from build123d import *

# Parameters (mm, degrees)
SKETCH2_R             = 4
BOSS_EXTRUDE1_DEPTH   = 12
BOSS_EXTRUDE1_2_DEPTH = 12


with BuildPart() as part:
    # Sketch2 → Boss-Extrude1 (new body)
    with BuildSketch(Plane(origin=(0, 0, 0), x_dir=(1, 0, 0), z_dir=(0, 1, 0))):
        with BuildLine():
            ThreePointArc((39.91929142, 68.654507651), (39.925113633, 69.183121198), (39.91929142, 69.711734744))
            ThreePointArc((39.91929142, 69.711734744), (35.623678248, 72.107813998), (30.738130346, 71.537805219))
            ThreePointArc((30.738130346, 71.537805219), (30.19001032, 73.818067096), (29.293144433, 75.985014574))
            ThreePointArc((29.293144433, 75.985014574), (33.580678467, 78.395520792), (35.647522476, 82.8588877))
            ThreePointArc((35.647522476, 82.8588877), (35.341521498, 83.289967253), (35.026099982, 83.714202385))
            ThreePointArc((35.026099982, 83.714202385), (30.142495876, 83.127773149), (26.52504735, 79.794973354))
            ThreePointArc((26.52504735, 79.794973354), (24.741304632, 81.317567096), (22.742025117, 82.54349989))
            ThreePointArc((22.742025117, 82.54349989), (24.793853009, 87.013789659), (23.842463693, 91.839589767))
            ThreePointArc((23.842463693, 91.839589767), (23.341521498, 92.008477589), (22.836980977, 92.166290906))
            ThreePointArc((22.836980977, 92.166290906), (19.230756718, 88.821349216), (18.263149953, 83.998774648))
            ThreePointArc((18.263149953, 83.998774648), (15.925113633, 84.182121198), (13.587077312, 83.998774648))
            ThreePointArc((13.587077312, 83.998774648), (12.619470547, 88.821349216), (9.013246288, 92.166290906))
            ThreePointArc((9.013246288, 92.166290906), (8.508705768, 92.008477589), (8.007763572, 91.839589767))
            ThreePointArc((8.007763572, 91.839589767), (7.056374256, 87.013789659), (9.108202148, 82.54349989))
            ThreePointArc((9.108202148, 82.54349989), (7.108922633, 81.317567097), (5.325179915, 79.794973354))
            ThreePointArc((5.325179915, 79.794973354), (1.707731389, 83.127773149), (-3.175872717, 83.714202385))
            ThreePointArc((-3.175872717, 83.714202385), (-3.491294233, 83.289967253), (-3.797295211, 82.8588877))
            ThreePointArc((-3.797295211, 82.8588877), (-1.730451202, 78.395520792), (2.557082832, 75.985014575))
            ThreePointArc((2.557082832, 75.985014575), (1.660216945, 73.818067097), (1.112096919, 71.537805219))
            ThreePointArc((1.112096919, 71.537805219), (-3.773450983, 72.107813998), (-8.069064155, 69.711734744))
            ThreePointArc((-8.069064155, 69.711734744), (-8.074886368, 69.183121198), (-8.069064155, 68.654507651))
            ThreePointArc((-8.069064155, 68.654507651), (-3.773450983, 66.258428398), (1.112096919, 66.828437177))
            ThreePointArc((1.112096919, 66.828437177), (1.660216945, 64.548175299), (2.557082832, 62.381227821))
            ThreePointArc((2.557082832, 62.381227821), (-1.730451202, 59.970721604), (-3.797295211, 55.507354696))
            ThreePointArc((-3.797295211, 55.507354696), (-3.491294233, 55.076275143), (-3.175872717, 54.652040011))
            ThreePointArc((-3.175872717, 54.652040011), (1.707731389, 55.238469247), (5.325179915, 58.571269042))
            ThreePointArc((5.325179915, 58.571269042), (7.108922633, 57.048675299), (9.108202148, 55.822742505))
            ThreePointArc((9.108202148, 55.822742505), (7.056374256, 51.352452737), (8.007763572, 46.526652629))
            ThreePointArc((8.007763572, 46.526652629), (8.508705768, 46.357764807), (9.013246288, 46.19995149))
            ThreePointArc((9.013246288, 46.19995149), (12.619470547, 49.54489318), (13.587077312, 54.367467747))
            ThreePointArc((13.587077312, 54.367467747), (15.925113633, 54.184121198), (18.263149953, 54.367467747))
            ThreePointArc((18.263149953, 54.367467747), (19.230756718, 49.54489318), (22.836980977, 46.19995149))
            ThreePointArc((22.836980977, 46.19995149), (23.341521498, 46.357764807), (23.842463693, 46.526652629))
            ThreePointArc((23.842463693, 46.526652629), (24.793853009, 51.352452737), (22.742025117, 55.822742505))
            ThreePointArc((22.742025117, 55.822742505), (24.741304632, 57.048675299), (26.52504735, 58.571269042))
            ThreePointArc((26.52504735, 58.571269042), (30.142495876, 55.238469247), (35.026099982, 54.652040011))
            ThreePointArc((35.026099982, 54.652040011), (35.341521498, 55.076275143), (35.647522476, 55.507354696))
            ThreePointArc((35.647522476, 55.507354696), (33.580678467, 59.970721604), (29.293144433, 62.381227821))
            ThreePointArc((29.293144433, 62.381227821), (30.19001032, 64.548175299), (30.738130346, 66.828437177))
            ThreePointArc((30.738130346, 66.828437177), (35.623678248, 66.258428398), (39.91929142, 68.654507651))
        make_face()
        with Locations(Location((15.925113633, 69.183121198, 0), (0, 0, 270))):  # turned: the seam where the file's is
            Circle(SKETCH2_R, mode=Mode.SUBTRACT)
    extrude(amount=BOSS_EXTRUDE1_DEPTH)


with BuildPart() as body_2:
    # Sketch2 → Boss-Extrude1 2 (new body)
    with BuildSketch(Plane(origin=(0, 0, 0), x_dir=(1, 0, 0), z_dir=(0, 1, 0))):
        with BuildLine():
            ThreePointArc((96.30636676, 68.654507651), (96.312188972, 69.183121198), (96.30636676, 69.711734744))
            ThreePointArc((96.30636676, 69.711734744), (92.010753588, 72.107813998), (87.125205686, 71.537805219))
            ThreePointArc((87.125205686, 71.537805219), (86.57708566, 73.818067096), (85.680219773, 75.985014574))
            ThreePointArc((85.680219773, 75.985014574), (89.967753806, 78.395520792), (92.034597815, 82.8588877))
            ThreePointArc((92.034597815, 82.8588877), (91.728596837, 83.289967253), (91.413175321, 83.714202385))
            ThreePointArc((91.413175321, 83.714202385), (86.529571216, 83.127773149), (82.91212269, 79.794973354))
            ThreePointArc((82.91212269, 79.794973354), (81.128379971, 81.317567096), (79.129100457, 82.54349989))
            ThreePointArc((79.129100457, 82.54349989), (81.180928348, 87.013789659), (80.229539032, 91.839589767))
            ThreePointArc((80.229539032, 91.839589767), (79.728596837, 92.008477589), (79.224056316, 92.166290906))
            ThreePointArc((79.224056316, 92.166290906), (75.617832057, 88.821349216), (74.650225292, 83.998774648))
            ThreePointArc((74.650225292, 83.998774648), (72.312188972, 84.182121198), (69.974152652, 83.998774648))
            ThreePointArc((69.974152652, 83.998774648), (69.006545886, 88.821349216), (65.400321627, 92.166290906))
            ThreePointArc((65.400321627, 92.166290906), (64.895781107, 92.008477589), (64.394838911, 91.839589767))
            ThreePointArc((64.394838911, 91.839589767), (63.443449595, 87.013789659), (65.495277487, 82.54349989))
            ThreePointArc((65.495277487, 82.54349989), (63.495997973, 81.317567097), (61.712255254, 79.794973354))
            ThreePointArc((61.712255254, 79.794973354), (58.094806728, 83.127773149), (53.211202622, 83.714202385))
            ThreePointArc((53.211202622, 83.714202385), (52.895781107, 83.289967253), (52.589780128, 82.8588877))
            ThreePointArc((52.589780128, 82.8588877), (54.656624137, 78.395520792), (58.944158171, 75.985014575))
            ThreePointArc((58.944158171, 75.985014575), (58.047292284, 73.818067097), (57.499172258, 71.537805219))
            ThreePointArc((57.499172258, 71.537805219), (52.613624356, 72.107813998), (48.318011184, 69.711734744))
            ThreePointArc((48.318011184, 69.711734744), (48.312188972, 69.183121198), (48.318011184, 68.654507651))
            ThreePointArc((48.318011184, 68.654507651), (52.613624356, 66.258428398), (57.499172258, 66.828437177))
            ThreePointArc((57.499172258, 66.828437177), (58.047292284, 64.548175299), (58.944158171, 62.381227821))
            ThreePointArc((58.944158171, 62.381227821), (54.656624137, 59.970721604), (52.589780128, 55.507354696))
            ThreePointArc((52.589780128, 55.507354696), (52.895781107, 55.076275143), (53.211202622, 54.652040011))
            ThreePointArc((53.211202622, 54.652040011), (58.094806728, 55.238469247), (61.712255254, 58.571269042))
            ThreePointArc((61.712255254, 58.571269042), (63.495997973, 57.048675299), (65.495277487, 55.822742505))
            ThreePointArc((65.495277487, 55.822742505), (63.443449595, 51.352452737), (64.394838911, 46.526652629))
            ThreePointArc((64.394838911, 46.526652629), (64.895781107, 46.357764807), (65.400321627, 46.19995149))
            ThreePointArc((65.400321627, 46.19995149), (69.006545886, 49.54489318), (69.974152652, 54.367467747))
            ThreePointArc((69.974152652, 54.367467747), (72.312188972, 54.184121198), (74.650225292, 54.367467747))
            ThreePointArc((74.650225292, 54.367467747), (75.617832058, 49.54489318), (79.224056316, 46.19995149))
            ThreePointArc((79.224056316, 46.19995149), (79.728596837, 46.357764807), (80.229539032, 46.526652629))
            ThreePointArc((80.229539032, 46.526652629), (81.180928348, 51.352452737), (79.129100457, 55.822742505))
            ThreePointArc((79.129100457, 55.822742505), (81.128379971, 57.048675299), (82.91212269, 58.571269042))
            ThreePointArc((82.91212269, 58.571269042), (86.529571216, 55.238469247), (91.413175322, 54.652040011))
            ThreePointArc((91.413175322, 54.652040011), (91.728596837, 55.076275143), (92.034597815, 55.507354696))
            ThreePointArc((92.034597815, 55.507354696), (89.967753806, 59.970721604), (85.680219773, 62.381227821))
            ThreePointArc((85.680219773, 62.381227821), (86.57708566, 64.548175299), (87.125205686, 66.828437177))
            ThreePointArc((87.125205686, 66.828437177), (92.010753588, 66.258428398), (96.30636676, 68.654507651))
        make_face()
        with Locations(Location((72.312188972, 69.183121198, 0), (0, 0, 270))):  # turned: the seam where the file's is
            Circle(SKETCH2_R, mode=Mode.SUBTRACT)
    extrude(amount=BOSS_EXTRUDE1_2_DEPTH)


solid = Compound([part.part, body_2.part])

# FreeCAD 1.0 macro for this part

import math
import FreeCAD as App
import Part
import Sketcher

doc = App.newDocument("Part")
body = doc.addObject("PartDesign::Body", "Body")

# Sketch on XZ plane
sketch1 = body.newObject("Sketcher::SketchObject", "Sketch")
sketch1.AttachmentSupport = (doc.getObject("XZ_Plane"), [""])
sketch1.MapMode = "FlatFace"
sketch1.addGeometry(Part.ArcOfCircle(Part.Circle(App.Vector(15.9, -69.2, 0), App.Vector(0, 0, 1), 24), math.radians(-1.26), math.radians(1.26)), False)
sketch1.addGeometry(Part.ArcOfCircle(Part.Circle(App.Vector(34.1, -64.3, 0), App.Vector(0, 0, 1), 8), math.radians(-115), math.radians(-43)), False)
sketch1.addGeometry(Part.ArcOfCircle(Part.Circle(App.Vector(15.9, -69.2, 0), App.Vector(0, 0, 1), 15), math.radians(-26.97), math.radians(-9.03)), False)
sketch1.addGeometry(Part.ArcOfCircle(Part.Circle(App.Vector(27.7, -83.8, 0), App.Vector(0, 0, 1), 8), math.radians(7), math.radians(79)), False)
sketch1.addGeometry(Part.ArcOfCircle(Part.Circle(App.Vector(15.9, -69.2, 0), App.Vector(0, 0, 1), 24), math.radians(-37.26), math.radians(-34.74)), False)
sketch1.addGeometry(Part.ArcOfCircle(Part.Circle(App.Vector(33.5, -75.9, 0), App.Vector(0, 0, 1), 8), math.radians(-151), math.radians(-79)), False)
sketch1.addGeometry(Part.ArcOfCircle(Part.Circle(App.Vector(15.9, -69.2, 0), App.Vector(0, 0, 1), 15), math.radians(-62.97), math.radians(-45.03)), False)
sketch1.addGeometry(Part.ArcOfCircle(Part.Circle(App.Vector(16.8, -88, 0), App.Vector(0, 0, 1), 8), math.radians(-29), math.radians(43)), False)
sketch1.addGeometry(Part.ArcOfCircle(Part.Circle(App.Vector(15.9, -69.2, 0), App.Vector(0, 0, 1), 24), math.radians(-73.26), math.radians(-70.74)), False)
sketch1.addGeometry(Part.ArcOfCircle(Part.Circle(App.Vector(26.2, -84.9, 0), App.Vector(0, 0, 1), 8), math.radians(173), math.radians(245)), False)
sketch1.addGeometry(Part.ArcOfCircle(Part.Circle(App.Vector(15.9, -69.2, 0), App.Vector(0, 0, 1), 15), math.radians(-98.97), math.radians(-81.03)), False)
sketch1.addGeometry(Part.ArcOfCircle(Part.Circle(App.Vector(5.6, -84.9, 0), App.Vector(0, 0, 1), 8), math.radians(-65), math.radians(7)), False)
sketch1.addGeometry(Part.ArcOfCircle(Part.Circle(App.Vector(15.9, -69.2, 0), App.Vector(0, 0, 1), 24), math.radians(-109.26), math.radians(-106.74)), False)
sketch1.addGeometry(Part.ArcOfCircle(Part.Circle(App.Vector(15, -88, 0), App.Vector(0, 0, 1), 8), math.radians(137), math.radians(209)), False)
sketch1.addGeometry(Part.ArcOfCircle(Part.Circle(App.Vector(15.9, -69.2, 0), App.Vector(0, 0, 1), 15), math.radians(-134.97), math.radians(-117.03)), False)
sketch1.addGeometry(Part.ArcOfCircle(Part.Circle(App.Vector(-1.6, -75.9, 0), App.Vector(0, 0, 1), 8), math.radians(-101), math.radians(-29)), False)
sketch1.addGeometry(Part.ArcOfCircle(Part.Circle(App.Vector(15.9, -69.2, 0), App.Vector(0, 0, 1), 24), math.radians(-145.26), math.radians(-142.74)), False)
sketch1.addGeometry(Part.ArcOfCircle(Part.Circle(App.Vector(4.1, -83.8, 0), App.Vector(0, 0, 1), 8), math.radians(101), math.radians(173)), False)
sketch1.addGeometry(Part.ArcOfCircle(Part.Circle(App.Vector(15.9, -69.2, 0), App.Vector(0, 0, 1), 15), math.radians(-170.97), math.radians(-153.03)), False)
sketch1.addGeometry(Part.ArcOfCircle(Part.Circle(App.Vector(-2.2, -64.3, 0), App.Vector(0, 0, 1), 8), math.radians(-137), math.radians(-65)), False)
sketch1.addGeometry(Part.ArcOfCircle(Part.Circle(App.Vector(15.9, -69.2, 0), App.Vector(0, 0, 1), 24), math.radians(178.74), math.radians(181.26)), False)
sketch1.addGeometry(Part.ArcOfCircle(Part.Circle(App.Vector(-2.2, -74.1, 0), App.Vector(0, 0, 1), 8), math.radians(65), math.radians(137)), False)
sketch1.addGeometry(Part.ArcOfCircle(Part.Circle(App.Vector(15.9, -69.2, 0), App.Vector(0, 0, 1), 15), math.radians(153.03), math.radians(170.97)), False)
sketch1.addGeometry(Part.ArcOfCircle(Part.Circle(App.Vector(4.1, -54.5, 0), App.Vector(0, 0, 1), 8), math.radians(-173), math.radians(-101)), False)
sketch1.addGeometry(Part.ArcOfCircle(Part.Circle(App.Vector(15.9, -69.2, 0), App.Vector(0, 0, 1), 24), math.radians(142.74), math.radians(145.26)), False)
sketch1.addGeometry(Part.ArcOfCircle(Part.Circle(App.Vector(-1.6, -62.5, 0), App.Vector(0, 0, 1), 8), math.radians(29), math.radians(101)), False)
sketch1.addGeometry(Part.ArcOfCircle(Part.Circle(App.Vector(15.9, -69.2, 0), App.Vector(0, 0, 1), 15), math.radians(117.03), math.radians(134.97)), False)
sketch1.addGeometry(Part.ArcOfCircle(Part.Circle(App.Vector(15, -50.4, 0), App.Vector(0, 0, 1), 8), math.radians(151), math.radians(223)), False)
sketch1.addGeometry(Part.ArcOfCircle(Part.Circle(App.Vector(15.9, -69.2, 0), App.Vector(0, 0, 1), 24), math.radians(106.74), math.radians(109.26)), False)
sketch1.addGeometry(Part.ArcOfCircle(Part.Circle(App.Vector(5.6, -53.5, 0), App.Vector(0, 0, 1), 8), math.radians(-7), math.radians(65)), False)
sketch1.addGeometry(Part.ArcOfCircle(Part.Circle(App.Vector(15.9, -69.2, 0), App.Vector(0, 0, 1), 15), math.radians(81.03), math.radians(98.97)), False)
sketch1.addGeometry(Part.ArcOfCircle(Part.Circle(App.Vector(26.2, -53.5, 0), App.Vector(0, 0, 1), 8), math.radians(115), math.radians(187)), False)
sketch1.addGeometry(Part.ArcOfCircle(Part.Circle(App.Vector(15.9, -69.2, 0), App.Vector(0, 0, 1), 24), math.radians(70.74), math.radians(73.26)), False)
sketch1.addGeometry(Part.ArcOfCircle(Part.Circle(App.Vector(16.8, -50.4, 0), App.Vector(0, 0, 1), 8), math.radians(-43), math.radians(29)), False)
sketch1.addGeometry(Part.ArcOfCircle(Part.Circle(App.Vector(15.9, -69.2, 0), App.Vector(0, 0, 1), 15), math.radians(45.03), math.radians(62.97)), False)
sketch1.addGeometry(Part.ArcOfCircle(Part.Circle(App.Vector(33.5, -62.5, 0), App.Vector(0, 0, 1), 8), math.radians(79), math.radians(151)), False)
sketch1.addGeometry(Part.ArcOfCircle(Part.Circle(App.Vector(15.9, -69.2, 0), App.Vector(0, 0, 1), 24), math.radians(34.74), math.radians(37.26)), False)
sketch1.addGeometry(Part.ArcOfCircle(Part.Circle(App.Vector(27.7, -54.5, 0), App.Vector(0, 0, 1), 8), math.radians(-79), math.radians(-7)), False)
sketch1.addGeometry(Part.ArcOfCircle(Part.Circle(App.Vector(15.9, -69.2, 0), App.Vector(0, 0, 1), 15), math.radians(9.03), math.radians(26.97)), False)
sketch1.addGeometry(Part.ArcOfCircle(Part.Circle(App.Vector(34.1, -74.1, 0), App.Vector(0, 0, 1), 8), math.radians(43), math.radians(115)), False)
sketch1.addGeometry(Part.Circle(App.Vector(15.9, -69.2, 0), App.Vector(0, 0, 1), 4), False)
sketch1.addConstraint(Sketcher.Constraint("Coincident", 0, 1, 1, 2))
sketch1.addConstraint(Sketcher.Constraint("Coincident", 1, 1, 2, 2))
sketch1.addConstraint(Sketcher.Constraint("Coincident", 2, 1, 3, 2))
sketch1.addConstraint(Sketcher.Constraint("Coincident", 3, 1, 4, 2))
sketch1.addConstraint(Sketcher.Constraint("Coincident", 4, 1, 5, 2))
sketch1.addConstraint(Sketcher.Constraint("Coincident", 5, 1, 6, 2))
sketch1.addConstraint(Sketcher.Constraint("Coincident", 6, 1, 7, 2))
sketch1.addConstraint(Sketcher.Constraint("Coincident", 7, 1, 8, 2))
sketch1.addConstraint(Sketcher.Constraint("Coincident", 8, 1, 9, 2))
sketch1.addConstraint(Sketcher.Constraint("Coincident", 9, 1, 10, 2))
sketch1.addConstraint(Sketcher.Constraint("Coincident", 10, 1, 11, 2))
sketch1.addConstraint(Sketcher.Constraint("Coincident", 11, 1, 12, 2))
sketch1.addConstraint(Sketcher.Constraint("Coincident", 12, 1, 13, 2))
sketch1.addConstraint(Sketcher.Constraint("Coincident", 13, 1, 14, 2))
sketch1.addConstraint(Sketcher.Constraint("Coincident", 14, 1, 15, 2))
sketch1.addConstraint(Sketcher.Constraint("Coincident", 15, 1, 16, 2))
sketch1.addConstraint(Sketcher.Constraint("Coincident", 16, 1, 17, 2))
sketch1.addConstraint(Sketcher.Constraint("Coincident", 17, 1, 18, 2))
sketch1.addConstraint(Sketcher.Constraint("Coincident", 18, 1, 19, 2))
sketch1.addConstraint(Sketcher.Constraint("Coincident", 19, 1, 20, 2))
sketch1.addConstraint(Sketcher.Constraint("Coincident", 20, 1, 21, 2))
sketch1.addConstraint(Sketcher.Constraint("Coincident", 21, 1, 22, 2))
sketch1.addConstraint(Sketcher.Constraint("Coincident", 22, 1, 23, 2))
sketch1.addConstraint(Sketcher.Constraint("Coincident", 23, 1, 24, 2))
sketch1.addConstraint(Sketcher.Constraint("Coincident", 24, 1, 25, 2))
sketch1.addConstraint(Sketcher.Constraint("Coincident", 25, 1, 26, 2))
sketch1.addConstraint(Sketcher.Constraint("Coincident", 26, 1, 27, 2))
sketch1.addConstraint(Sketcher.Constraint("Coincident", 27, 1, 28, 2))
sketch1.addConstraint(Sketcher.Constraint("Coincident", 28, 1, 29, 2))
sketch1.addConstraint(Sketcher.Constraint("Coincident", 29, 1, 30, 2))
sketch1.addConstraint(Sketcher.Constraint("Coincident", 30, 1, 31, 2))
sketch1.addConstraint(Sketcher.Constraint("Coincident", 31, 1, 32, 2))
sketch1.addConstraint(Sketcher.Constraint("Coincident", 32, 1, 33, 2))
sketch1.addConstraint(Sketcher.Constraint("Coincident", 33, 1, 34, 2))
sketch1.addConstraint(Sketcher.Constraint("Coincident", 34, 1, 35, 2))
sketch1.addConstraint(Sketcher.Constraint("Coincident", 35, 1, 36, 2))
sketch1.addConstraint(Sketcher.Constraint("Coincident", 36, 1, 37, 2))
sketch1.addConstraint(Sketcher.Constraint("Coincident", 37, 1, 38, 2))
sketch1.addConstraint(Sketcher.Constraint("Coincident", 38, 1, 39, 2))
sketch1.addConstraint(Sketcher.Constraint("Coincident", 39, 1, 0, 2))
sketch1.addConstraint(Sketcher.Constraint("Coincident", 2, 3, 0, 3))
sketch1.addConstraint(Sketcher.Constraint("Coincident", 4, 3, 0, 3))
sketch1.addConstraint(Sketcher.Constraint("Coincident", 6, 3, 0, 3))
sketch1.addConstraint(Sketcher.Constraint("Coincident", 8, 3, 0, 3))
sketch1.addConstraint(Sketcher.Constraint("Coincident", 10, 3, 0, 3))
sketch1.addConstraint(Sketcher.Constraint("Coincident", 12, 3, 0, 3))
sketch1.addConstraint(Sketcher.Constraint("Coincident", 14, 3, 0, 3))
sketch1.addConstraint(Sketcher.Constraint("Coincident", 16, 3, 0, 3))
sketch1.addConstraint(Sketcher.Constraint("Coincident", 18, 3, 0, 3))
sketch1.addConstraint(Sketcher.Constraint("Coincident", 20, 3, 0, 3))
sketch1.addConstraint(Sketcher.Constraint("Coincident", 22, 3, 0, 3))
sketch1.addConstraint(Sketcher.Constraint("Coincident", 24, 3, 0, 3))
sketch1.addConstraint(Sketcher.Constraint("Coincident", 26, 3, 0, 3))
sketch1.addConstraint(Sketcher.Constraint("Coincident", 28, 3, 0, 3))
sketch1.addConstraint(Sketcher.Constraint("Coincident", 30, 3, 0, 3))
sketch1.addConstraint(Sketcher.Constraint("Coincident", 32, 3, 0, 3))
sketch1.addConstraint(Sketcher.Constraint("Coincident", 34, 3, 0, 3))
sketch1.addConstraint(Sketcher.Constraint("Coincident", 36, 3, 0, 3))
sketch1.addConstraint(Sketcher.Constraint("Coincident", 38, 3, 0, 3))
sketch1.addConstraint(Sketcher.Constraint("Coincident", 40, 3, 0, 3))
sketch1.addConstraint(Sketcher.Constraint("Equal", 1, 3))
sketch1.addConstraint(Sketcher.Constraint("Equal", 0, 4))
sketch1.addConstraint(Sketcher.Constraint("Equal", 3, 5))
sketch1.addConstraint(Sketcher.Constraint("Equal", 2, 6))
sketch1.addConstraint(Sketcher.Constraint("Equal", 5, 7))
sketch1.addConstraint(Sketcher.Constraint("Equal", 7, 9))
sketch1.addConstraint(Sketcher.Constraint("Equal", 6, 10))
sketch1.addConstraint(Sketcher.Constraint("Equal", 9, 11))
sketch1.addConstraint(Sketcher.Constraint("Equal", 8, 12))
sketch1.addConstraint(Sketcher.Constraint("Equal", 11, 13))
sketch1.addConstraint(Sketcher.Constraint("Equal", 10, 14))
sketch1.addConstraint(Sketcher.Constraint("Equal", 13, 15))
sketch1.addConstraint(Sketcher.Constraint("Equal", 4, 16))
sketch1.addConstraint(Sketcher.Constraint("Equal", 15, 17))
sketch1.addConstraint(Sketcher.Constraint("Equal", 14, 18))
sketch1.addConstraint(Sketcher.Constraint("Equal", 17, 19))
sketch1.addConstraint(Sketcher.Constraint("Equal", 16, 20))
sketch1.addConstraint(Sketcher.Constraint("Equal", 19, 21))
sketch1.addConstraint(Sketcher.Constraint("Equal", 18, 22))
sketch1.addConstraint(Sketcher.Constraint("Equal", 21, 23))
sketch1.addConstraint(Sketcher.Constraint("Equal", 20, 24))
sketch1.addConstraint(Sketcher.Constraint("Equal", 23, 25))
sketch1.addConstraint(Sketcher.Constraint("Equal", 22, 26))
sketch1.addConstraint(Sketcher.Constraint("Equal", 25, 27))
sketch1.addConstraint(Sketcher.Constraint("Equal", 12, 28))
sketch1.addConstraint(Sketcher.Constraint("Equal", 27, 29))
sketch1.addConstraint(Sketcher.Constraint("Equal", 26, 30))
sketch1.addConstraint(Sketcher.Constraint("Equal", 29, 31))
sketch1.addConstraint(Sketcher.Constraint("Equal", 28, 32))
sketch1.addConstraint(Sketcher.Constraint("Equal", 31, 33))
sketch1.addConstraint(Sketcher.Constraint("Equal", 30, 34))
sketch1.addConstraint(Sketcher.Constraint("Equal", 33, 35))
sketch1.addConstraint(Sketcher.Constraint("Equal", 24, 36))
sketch1.addConstraint(Sketcher.Constraint("Equal", 35, 37))
sketch1.addConstraint(Sketcher.Constraint("Equal", 34, 38))
sketch1.addConstraint(Sketcher.Constraint("Equal", 37, 39))
sketch1.addConstraint(Sketcher.Constraint("Horizontal", 9, 3, 11, 3))
sketch1.addConstraint(Sketcher.Constraint("Horizontal", 7, 3, 13, 3))
sketch1.addConstraint(Sketcher.Constraint("Horizontal", 5, 3, 15, 3))
sketch1.addConstraint(Sketcher.Constraint("Horizontal", 3, 3, 17, 3))
sketch1.addConstraint(Sketcher.Constraint("Horizontal", 1, 3, 19, 3))
sketch1.addConstraint(Sketcher.Constraint("Horizontal", 29, 3, 31, 3))
sketch1.addConstraint(Sketcher.Constraint("Horizontal", 27, 3, 33, 3))
sketch1.addConstraint(Sketcher.Constraint("Horizontal", 25, 3, 35, 3))
sketch1.addConstraint(Sketcher.Constraint("Horizontal", 23, 3, 37, 3))
sketch1.addConstraint(Sketcher.Constraint("Horizontal", 21, 3, 39, 3))
sketch1.addConstraint(Sketcher.Constraint("Horizontal", 9, 1, 10, 1))
sketch1.addConstraint(Sketcher.Constraint("Horizontal", 7, 1, 12, 1))
sketch1.addConstraint(Sketcher.Constraint("Horizontal", 5, 1, 14, 1))
sketch1.addConstraint(Sketcher.Constraint("Horizontal", 3, 1, 16, 1))
sketch1.addConstraint(Sketcher.Constraint("Horizontal", 1, 1, 18, 1))
sketch1.addConstraint(Sketcher.Constraint("Horizontal", 29, 1, 30, 1))
sketch1.addConstraint(Sketcher.Constraint("Horizontal", 27, 1, 32, 1))
sketch1.addConstraint(Sketcher.Constraint("Horizontal", 25, 1, 34, 1))
sketch1.addConstraint(Sketcher.Constraint("Horizontal", 23, 1, 36, 1))
sketch1.addConstraint(Sketcher.Constraint("Horizontal", 21, 1, 38, 1))
sketch1.addConstraint(Sketcher.Constraint("Vertical", 19, 3, 21, 3))
sketch1.addConstraint(Sketcher.Constraint("Vertical", 17, 3, 23, 3))
sketch1.addConstraint(Sketcher.Constraint("Vertical", 15, 3, 25, 3))
sketch1.addConstraint(Sketcher.Constraint("Vertical", 13, 3, 27, 3))
sketch1.addConstraint(Sketcher.Constraint("Vertical", 11, 3, 29, 3))
sketch1.addConstraint(Sketcher.Constraint("Vertical", 19, 1, 20, 1))
sketch1.addConstraint(Sketcher.Constraint("Vertical", 17, 1, 22, 1))
sketch1.addConstraint(Sketcher.Constraint("Vertical", 15, 1, 24, 1))
sketch1.addConstraint(Sketcher.Constraint("Vertical", 13, 1, 26, 1))
sketch1.addConstraint(Sketcher.Constraint("Vertical", 11, 1, 28, 1))
sketch1.addConstraint(Sketcher.Constraint("Diameter", 40, 8.0))
sketch1.addConstraint(Sketcher.Constraint("Radius", 1, 8.0))
sketch1.addConstraint(Sketcher.Constraint("Radius", 4, 23.999998))
sketch1.addConstraint(Sketcher.Constraint("Radius", 8, 24.0))
sketch1.addConstraint(Sketcher.Constraint("Radius", 2, 14.999))
sketch1.addConstraint(Sketcher.Constraint("DistanceX", -1, 1, 1, 3, 34.0631))
sketch1.addConstraint(Sketcher.Constraint("DistanceX", -1, 1, 3, 3, 27.706199))
sketch1.addConstraint(Sketcher.Constraint("DistanceX", -1, 1, 4, 1, 35.0261))
sketch1.addConstraint(Sketcher.Constraint("DistanceY", 6, 1, -1, 1, 82.5435))
sketch1.addConstraint(Sketcher.Constraint("DistanceY", 0, 3, -1, 1, 69.183121))
sketch1.addConstraint(Sketcher.Constraint("DistanceY", 5, 3, -1, 1, 75.86269))
sketch1.addConstraint(Sketcher.Constraint("DistanceY", 9, 3, -1, 1, 84.912508))
sketch1.addConstraint(Sketcher.Constraint("DistanceX", -1, 1, 11, 3, 5.63943))
sketch1.addConstraint(Sketcher.Constraint("DistanceX", 15, 3, -1, 1, 1.64168))
sketch1.addConstraint(Sketcher.Constraint("DistanceY", 21, 3, -1, 1, 74.104739))
sketch1.addConstraint(Sketcher.Constraint("DistanceY", 7, 1, -1, 1, 91.83959))
sketch1.addConstraint(Sketcher.Constraint("DistanceY", 3, 3, -1, 1, 83.826035))
pad1 = body.newObject("PartDesign::Pad", "Pad")
pad1.Profile = sketch1
pad1.Length = 12
pad1.Reversed = True
body2 = doc.addObject("PartDesign::Body", "Body001")

# Sketch on XZ plane
sketch2 = body2.newObject("Sketcher::SketchObject", "Sketch001")
sketch2.AttachmentSupport = (doc.getObject("XZ_Plane001"), [""])
sketch2.MapMode = "FlatFace"
sketch2.addGeometry(Part.ArcOfCircle(Part.Circle(App.Vector(72.3, -69.2, 0), App.Vector(0, 0, 1), 24), math.radians(-1.26), math.radians(1.26)), False)
sketch2.addGeometry(Part.ArcOfCircle(Part.Circle(App.Vector(90.5, -64.3, 0), App.Vector(0, 0, 1), 8), math.radians(-115), math.radians(-43)), False)
sketch2.addGeometry(Part.ArcOfCircle(Part.Circle(App.Vector(72.3, -69.2, 0), App.Vector(0, 0, 1), 15), math.radians(-26.97), math.radians(-9.03)), False)
sketch2.addGeometry(Part.ArcOfCircle(Part.Circle(App.Vector(84.1, -83.8, 0), App.Vector(0, 0, 1), 8), math.radians(7), math.radians(79)), False)
sketch2.addGeometry(Part.ArcOfCircle(Part.Circle(App.Vector(72.3, -69.2, 0), App.Vector(0, 0, 1), 24), math.radians(-37.26), math.radians(-34.74)), False)
sketch2.addGeometry(Part.ArcOfCircle(Part.Circle(App.Vector(89.9, -75.9, 0), App.Vector(0, 0, 1), 8), math.radians(-151), math.radians(-79)), False)
sketch2.addGeometry(Part.ArcOfCircle(Part.Circle(App.Vector(72.3, -69.2, 0), App.Vector(0, 0, 1), 15), math.radians(-62.97), math.radians(-45.03)), False)
sketch2.addGeometry(Part.ArcOfCircle(Part.Circle(App.Vector(73.2, -88, 0), App.Vector(0, 0, 1), 8), math.radians(-29), math.radians(43)), False)
sketch2.addGeometry(Part.ArcOfCircle(Part.Circle(App.Vector(72.3, -69.2, 0), App.Vector(0, 0, 1), 24), math.radians(-73.26), math.radians(-70.74)), False)
sketch2.addGeometry(Part.ArcOfCircle(Part.Circle(App.Vector(82.6, -84.9, 0), App.Vector(0, 0, 1), 8), math.radians(173), math.radians(245)), False)
sketch2.addGeometry(Part.ArcOfCircle(Part.Circle(App.Vector(72.3, -69.2, 0), App.Vector(0, 0, 1), 15), math.radians(-98.97), math.radians(-81.03)), False)
sketch2.addGeometry(Part.ArcOfCircle(Part.Circle(App.Vector(62, -84.9, 0), App.Vector(0, 0, 1), 8), math.radians(-65), math.radians(7)), False)
sketch2.addGeometry(Part.ArcOfCircle(Part.Circle(App.Vector(72.3, -69.2, 0), App.Vector(0, 0, 1), 24), math.radians(-109.26), math.radians(-106.74)), False)
sketch2.addGeometry(Part.ArcOfCircle(Part.Circle(App.Vector(71.4, -88, 0), App.Vector(0, 0, 1), 8), math.radians(137), math.radians(209)), False)
sketch2.addGeometry(Part.ArcOfCircle(Part.Circle(App.Vector(72.3, -69.2, 0), App.Vector(0, 0, 1), 15), math.radians(-134.97), math.radians(-117.03)), False)
sketch2.addGeometry(Part.ArcOfCircle(Part.Circle(App.Vector(54.7, -75.9, 0), App.Vector(0, 0, 1), 8), math.radians(-101), math.radians(-29)), False)
sketch2.addGeometry(Part.ArcOfCircle(Part.Circle(App.Vector(72.3, -69.2, 0), App.Vector(0, 0, 1), 24), math.radians(-145.26), math.radians(-142.74)), False)
sketch2.addGeometry(Part.ArcOfCircle(Part.Circle(App.Vector(60.5, -83.8, 0), App.Vector(0, 0, 1), 8), math.radians(101), math.radians(173)), False)
sketch2.addGeometry(Part.ArcOfCircle(Part.Circle(App.Vector(72.3, -69.2, 0), App.Vector(0, 0, 1), 15), math.radians(-170.97), math.radians(-153.03)), False)
sketch2.addGeometry(Part.ArcOfCircle(Part.Circle(App.Vector(54.2, -64.3, 0), App.Vector(0, 0, 1), 8), math.radians(-137), math.radians(-65)), False)
sketch2.addGeometry(Part.ArcOfCircle(Part.Circle(App.Vector(72.3, -69.2, 0), App.Vector(0, 0, 1), 24), math.radians(178.74), math.radians(181.26)), False)
sketch2.addGeometry(Part.ArcOfCircle(Part.Circle(App.Vector(54.2, -74.1, 0), App.Vector(0, 0, 1), 8), math.radians(65), math.radians(137)), False)
sketch2.addGeometry(Part.ArcOfCircle(Part.Circle(App.Vector(72.3, -69.2, 0), App.Vector(0, 0, 1), 15), math.radians(153.03), math.radians(170.97)), False)
sketch2.addGeometry(Part.ArcOfCircle(Part.Circle(App.Vector(60.5, -54.5, 0), App.Vector(0, 0, 1), 8), math.radians(-173), math.radians(-101)), False)
sketch2.addGeometry(Part.ArcOfCircle(Part.Circle(App.Vector(72.3, -69.2, 0), App.Vector(0, 0, 1), 24), math.radians(142.74), math.radians(145.26)), False)
sketch2.addGeometry(Part.ArcOfCircle(Part.Circle(App.Vector(54.7, -62.5, 0), App.Vector(0, 0, 1), 8), math.radians(29), math.radians(101)), False)
sketch2.addGeometry(Part.ArcOfCircle(Part.Circle(App.Vector(72.3, -69.2, 0), App.Vector(0, 0, 1), 15), math.radians(117.03), math.radians(134.97)), False)
sketch2.addGeometry(Part.ArcOfCircle(Part.Circle(App.Vector(71.4, -50.4, 0), App.Vector(0, 0, 1), 8), math.radians(151), math.radians(223)), False)
sketch2.addGeometry(Part.ArcOfCircle(Part.Circle(App.Vector(72.3, -69.2, 0), App.Vector(0, 0, 1), 24), math.radians(106.74), math.radians(109.26)), False)
sketch2.addGeometry(Part.ArcOfCircle(Part.Circle(App.Vector(62, -53.5, 0), App.Vector(0, 0, 1), 8), math.radians(-7), math.radians(65)), False)
sketch2.addGeometry(Part.ArcOfCircle(Part.Circle(App.Vector(72.3, -69.2, 0), App.Vector(0, 0, 1), 15), math.radians(81.03), math.radians(98.97)), False)
sketch2.addGeometry(Part.ArcOfCircle(Part.Circle(App.Vector(82.6, -53.5, 0), App.Vector(0, 0, 1), 8), math.radians(115), math.radians(187)), False)
sketch2.addGeometry(Part.ArcOfCircle(Part.Circle(App.Vector(72.3, -69.2, 0), App.Vector(0, 0, 1), 24), math.radians(70.74), math.radians(73.26)), False)
sketch2.addGeometry(Part.ArcOfCircle(Part.Circle(App.Vector(73.2, -50.4, 0), App.Vector(0, 0, 1), 8), math.radians(-43), math.radians(29)), False)
sketch2.addGeometry(Part.ArcOfCircle(Part.Circle(App.Vector(72.3, -69.2, 0), App.Vector(0, 0, 1), 15), math.radians(45.03), math.radians(62.97)), False)
sketch2.addGeometry(Part.ArcOfCircle(Part.Circle(App.Vector(89.9, -62.5, 0), App.Vector(0, 0, 1), 8), math.radians(79), math.radians(151)), False)
sketch2.addGeometry(Part.ArcOfCircle(Part.Circle(App.Vector(72.3, -69.2, 0), App.Vector(0, 0, 1), 24), math.radians(34.74), math.radians(37.26)), False)
sketch2.addGeometry(Part.ArcOfCircle(Part.Circle(App.Vector(84.1, -54.5, 0), App.Vector(0, 0, 1), 8), math.radians(-79), math.radians(-7)), False)
sketch2.addGeometry(Part.ArcOfCircle(Part.Circle(App.Vector(72.3, -69.2, 0), App.Vector(0, 0, 1), 15), math.radians(9.03), math.radians(26.97)), False)
sketch2.addGeometry(Part.ArcOfCircle(Part.Circle(App.Vector(90.5, -74.1, 0), App.Vector(0, 0, 1), 8), math.radians(43), math.radians(115)), False)
sketch2.addGeometry(Part.Circle(App.Vector(72.3, -69.2, 0), App.Vector(0, 0, 1), 4), False)
sketch2.addConstraint(Sketcher.Constraint("Coincident", 0, 1, 1, 2))
sketch2.addConstraint(Sketcher.Constraint("Coincident", 1, 1, 2, 2))
sketch2.addConstraint(Sketcher.Constraint("Coincident", 2, 1, 3, 2))
sketch2.addConstraint(Sketcher.Constraint("Coincident", 3, 1, 4, 2))
sketch2.addConstraint(Sketcher.Constraint("Coincident", 4, 1, 5, 2))
sketch2.addConstraint(Sketcher.Constraint("Coincident", 5, 1, 6, 2))
sketch2.addConstraint(Sketcher.Constraint("Coincident", 6, 1, 7, 2))
sketch2.addConstraint(Sketcher.Constraint("Coincident", 7, 1, 8, 2))
sketch2.addConstraint(Sketcher.Constraint("Coincident", 8, 1, 9, 2))
sketch2.addConstraint(Sketcher.Constraint("Coincident", 9, 1, 10, 2))
sketch2.addConstraint(Sketcher.Constraint("Coincident", 10, 1, 11, 2))
sketch2.addConstraint(Sketcher.Constraint("Coincident", 11, 1, 12, 2))
sketch2.addConstraint(Sketcher.Constraint("Coincident", 12, 1, 13, 2))
sketch2.addConstraint(Sketcher.Constraint("Coincident", 13, 1, 14, 2))
sketch2.addConstraint(Sketcher.Constraint("Coincident", 14, 1, 15, 2))
sketch2.addConstraint(Sketcher.Constraint("Coincident", 15, 1, 16, 2))
sketch2.addConstraint(Sketcher.Constraint("Coincident", 16, 1, 17, 2))
sketch2.addConstraint(Sketcher.Constraint("Coincident", 17, 1, 18, 2))
sketch2.addConstraint(Sketcher.Constraint("Coincident", 18, 1, 19, 2))
sketch2.addConstraint(Sketcher.Constraint("Coincident", 19, 1, 20, 2))
sketch2.addConstraint(Sketcher.Constraint("Coincident", 20, 1, 21, 2))
sketch2.addConstraint(Sketcher.Constraint("Coincident", 21, 1, 22, 2))
sketch2.addConstraint(Sketcher.Constraint("Coincident", 22, 1, 23, 2))
sketch2.addConstraint(Sketcher.Constraint("Coincident", 23, 1, 24, 2))
sketch2.addConstraint(Sketcher.Constraint("Coincident", 24, 1, 25, 2))
sketch2.addConstraint(Sketcher.Constraint("Coincident", 25, 1, 26, 2))
sketch2.addConstraint(Sketcher.Constraint("Coincident", 26, 1, 27, 2))
sketch2.addConstraint(Sketcher.Constraint("Coincident", 27, 1, 28, 2))
sketch2.addConstraint(Sketcher.Constraint("Coincident", 28, 1, 29, 2))
sketch2.addConstraint(Sketcher.Constraint("Coincident", 29, 1, 30, 2))
sketch2.addConstraint(Sketcher.Constraint("Coincident", 30, 1, 31, 2))
sketch2.addConstraint(Sketcher.Constraint("Coincident", 31, 1, 32, 2))
sketch2.addConstraint(Sketcher.Constraint("Coincident", 32, 1, 33, 2))
sketch2.addConstraint(Sketcher.Constraint("Coincident", 33, 1, 34, 2))
sketch2.addConstraint(Sketcher.Constraint("Coincident", 34, 1, 35, 2))
sketch2.addConstraint(Sketcher.Constraint("Coincident", 35, 1, 36, 2))
sketch2.addConstraint(Sketcher.Constraint("Coincident", 36, 1, 37, 2))
sketch2.addConstraint(Sketcher.Constraint("Coincident", 37, 1, 38, 2))
sketch2.addConstraint(Sketcher.Constraint("Coincident", 38, 1, 39, 2))
sketch2.addConstraint(Sketcher.Constraint("Coincident", 39, 1, 0, 2))
sketch2.addConstraint(Sketcher.Constraint("Coincident", 2, 3, 0, 3))
sketch2.addConstraint(Sketcher.Constraint("Coincident", 4, 3, 0, 3))
sketch2.addConstraint(Sketcher.Constraint("Coincident", 6, 3, 0, 3))
sketch2.addConstraint(Sketcher.Constraint("Coincident", 8, 3, 0, 3))
sketch2.addConstraint(Sketcher.Constraint("Coincident", 10, 3, 0, 3))
sketch2.addConstraint(Sketcher.Constraint("Coincident", 12, 3, 0, 3))
sketch2.addConstraint(Sketcher.Constraint("Coincident", 14, 3, 0, 3))
sketch2.addConstraint(Sketcher.Constraint("Coincident", 16, 3, 0, 3))
sketch2.addConstraint(Sketcher.Constraint("Coincident", 18, 3, 0, 3))
sketch2.addConstraint(Sketcher.Constraint("Coincident", 20, 3, 0, 3))
sketch2.addConstraint(Sketcher.Constraint("Coincident", 22, 3, 0, 3))
sketch2.addConstraint(Sketcher.Constraint("Coincident", 24, 3, 0, 3))
sketch2.addConstraint(Sketcher.Constraint("Coincident", 26, 3, 0, 3))
sketch2.addConstraint(Sketcher.Constraint("Coincident", 28, 3, 0, 3))
sketch2.addConstraint(Sketcher.Constraint("Coincident", 30, 3, 0, 3))
sketch2.addConstraint(Sketcher.Constraint("Coincident", 32, 3, 0, 3))
sketch2.addConstraint(Sketcher.Constraint("Coincident", 34, 3, 0, 3))
sketch2.addConstraint(Sketcher.Constraint("Coincident", 36, 3, 0, 3))
sketch2.addConstraint(Sketcher.Constraint("Coincident", 38, 3, 0, 3))
sketch2.addConstraint(Sketcher.Constraint("Coincident", 40, 3, 0, 3))
sketch2.addConstraint(Sketcher.Constraint("Equal", 1, 3))
sketch2.addConstraint(Sketcher.Constraint("Equal", 3, 5))
sketch2.addConstraint(Sketcher.Constraint("Equal", 2, 6))
sketch2.addConstraint(Sketcher.Constraint("Equal", 5, 7))
sketch2.addConstraint(Sketcher.Constraint("Equal", 0, 8))
sketch2.addConstraint(Sketcher.Constraint("Equal", 7, 9))
sketch2.addConstraint(Sketcher.Constraint("Equal", 6, 10))
sketch2.addConstraint(Sketcher.Constraint("Equal", 9, 11))
sketch2.addConstraint(Sketcher.Constraint("Equal", 8, 12))
sketch2.addConstraint(Sketcher.Constraint("Equal", 11, 13))
sketch2.addConstraint(Sketcher.Constraint("Equal", 10, 14))
sketch2.addConstraint(Sketcher.Constraint("Equal", 13, 15))
sketch2.addConstraint(Sketcher.Constraint("Equal", 12, 16))
sketch2.addConstraint(Sketcher.Constraint("Equal", 15, 17))
sketch2.addConstraint(Sketcher.Constraint("Equal", 14, 18))
sketch2.addConstraint(Sketcher.Constraint("Equal", 17, 19))
sketch2.addConstraint(Sketcher.Constraint("Equal", 16, 20))
sketch2.addConstraint(Sketcher.Constraint("Equal", 19, 21))
sketch2.addConstraint(Sketcher.Constraint("Equal", 18, 22))
sketch2.addConstraint(Sketcher.Constraint("Equal", 21, 23))
sketch2.addConstraint(Sketcher.Constraint("Equal", 20, 24))
sketch2.addConstraint(Sketcher.Constraint("Equal", 23, 25))
sketch2.addConstraint(Sketcher.Constraint("Equal", 22, 26))
sketch2.addConstraint(Sketcher.Constraint("Equal", 25, 27))
sketch2.addConstraint(Sketcher.Constraint("Equal", 24, 28))
sketch2.addConstraint(Sketcher.Constraint("Equal", 27, 29))
sketch2.addConstraint(Sketcher.Constraint("Equal", 26, 30))
sketch2.addConstraint(Sketcher.Constraint("Equal", 29, 31))
sketch2.addConstraint(Sketcher.Constraint("Equal", 28, 32))
sketch2.addConstraint(Sketcher.Constraint("Equal", 31, 33))
sketch2.addConstraint(Sketcher.Constraint("Equal", 30, 34))
sketch2.addConstraint(Sketcher.Constraint("Equal", 33, 35))
sketch2.addConstraint(Sketcher.Constraint("Equal", 32, 36))
sketch2.addConstraint(Sketcher.Constraint("Equal", 35, 37))
sketch2.addConstraint(Sketcher.Constraint("Equal", 34, 38))
sketch2.addConstraint(Sketcher.Constraint("Equal", 37, 39))
sketch2.addConstraint(Sketcher.Constraint("Horizontal", 9, 3, 11, 3))
sketch2.addConstraint(Sketcher.Constraint("Horizontal", 7, 3, 13, 3))
sketch2.addConstraint(Sketcher.Constraint("Horizontal", 5, 3, 15, 3))
sketch2.addConstraint(Sketcher.Constraint("Horizontal", 3, 3, 17, 3))
sketch2.addConstraint(Sketcher.Constraint("Horizontal", 1, 3, 19, 3))
sketch2.addConstraint(Sketcher.Constraint("Horizontal", 29, 3, 31, 3))
sketch2.addConstraint(Sketcher.Constraint("Horizontal", 27, 3, 33, 3))
sketch2.addConstraint(Sketcher.Constraint("Horizontal", 25, 3, 35, 3))
sketch2.addConstraint(Sketcher.Constraint("Horizontal", 23, 3, 37, 3))
sketch2.addConstraint(Sketcher.Constraint("Horizontal", 21, 3, 39, 3))
sketch2.addConstraint(Sketcher.Constraint("Horizontal", 9, 1, 10, 1))
sketch2.addConstraint(Sketcher.Constraint("Horizontal", 7, 1, 12, 1))
sketch2.addConstraint(Sketcher.Constraint("Horizontal", 5, 1, 14, 1))
sketch2.addConstraint(Sketcher.Constraint("Horizontal", 4, 1, 15, 1))
sketch2.addConstraint(Sketcher.Constraint("Horizontal", 3, 1, 16, 1))
sketch2.addConstraint(Sketcher.Constraint("Horizontal", 1, 1, 18, 1))
sketch2.addConstraint(Sketcher.Constraint("Horizontal", 29, 1, 30, 1))
sketch2.addConstraint(Sketcher.Constraint("Horizontal", 27, 1, 32, 1))
sketch2.addConstraint(Sketcher.Constraint("Horizontal", 25, 1, 34, 1))
sketch2.addConstraint(Sketcher.Constraint("Horizontal", 23, 1, 36, 1))
sketch2.addConstraint(Sketcher.Constraint("Horizontal", 21, 1, 38, 1))
sketch2.addConstraint(Sketcher.Constraint("Vertical", 19, 3, 21, 3))
sketch2.addConstraint(Sketcher.Constraint("Vertical", 17, 3, 23, 3))
sketch2.addConstraint(Sketcher.Constraint("Vertical", 15, 3, 25, 3))
sketch2.addConstraint(Sketcher.Constraint("Vertical", 13, 3, 27, 3))
sketch2.addConstraint(Sketcher.Constraint("Vertical", 11, 3, 29, 3))
sketch2.addConstraint(Sketcher.Constraint("Vertical", 19, 1, 20, 1))
sketch2.addConstraint(Sketcher.Constraint("Vertical", 17, 1, 22, 1))
sketch2.addConstraint(Sketcher.Constraint("Vertical", 15, 1, 24, 1))
sketch2.addConstraint(Sketcher.Constraint("Vertical", 13, 1, 26, 1))
sketch2.addConstraint(Sketcher.Constraint("Vertical", 11, 1, 28, 1))
sketch2.addConstraint(Sketcher.Constraint("Diameter", 40, 8.0))
sketch2.addConstraint(Sketcher.Constraint("Radius", 0, 24.0))
sketch2.addConstraint(Sketcher.Constraint("Radius", 1, 8.0))
sketch2.addConstraint(Sketcher.Constraint("Radius", 2, 14.999))
sketch2.addConstraint(Sketcher.Constraint("DistanceX", -1, 1, 7, 3, 73.236398))
sketch2.addConstraint(Sketcher.Constraint("DistanceX", -1, 1, 6, 1, 79.1291))
sketch2.addConstraint(Sketcher.Constraint("DistanceY", 6, 1, -1, 1, 82.5435))
sketch2.addConstraint(Sketcher.Constraint("DistanceX", -1, 1, 0, 3, 72.312189))
sketch2.addConstraint(Sketcher.Constraint("DistanceY", 5, 3, -1, 1, 75.86269))
sketch2.addConstraint(Sketcher.Constraint("DistanceY", 9, 3, -1, 1, 84.912508))
sketch2.addConstraint(Sketcher.Constraint("DistanceY", 21, 3, -1, 1, 74.104739))
sketch2.addConstraint(Sketcher.Constraint("DistanceX", -1, 1, 2, 1, 85.68022))
sketch2.addConstraint(Sketcher.Constraint("DistanceY", 8, 1, -1, 1, 92.166291))
sketch2.addConstraint(Sketcher.Constraint("DistanceX", -1, 1, 16, 1, 52.58978))
sketch2.addConstraint(Sketcher.Constraint("DistanceX", -1, 1, 19, 1, 48.318011))
sketch2.addConstraint(Sketcher.Constraint("DistanceY", 24, 1, -1, 1, 54.65204))
pad2 = body2.newObject("PartDesign::Pad", "Pad001")
pad2.Profile = sketch2
pad2.Length = 12
pad2.Reversed = True

doc.recompute()
